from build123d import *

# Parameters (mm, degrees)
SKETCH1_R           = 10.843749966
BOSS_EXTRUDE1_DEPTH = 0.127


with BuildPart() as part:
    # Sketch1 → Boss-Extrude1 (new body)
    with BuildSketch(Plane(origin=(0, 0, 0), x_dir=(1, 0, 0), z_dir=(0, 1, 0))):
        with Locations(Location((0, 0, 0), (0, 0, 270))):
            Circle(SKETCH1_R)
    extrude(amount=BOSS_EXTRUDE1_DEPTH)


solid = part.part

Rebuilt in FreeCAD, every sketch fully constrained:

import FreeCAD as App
import Part
import Sketcher
from FreeCAD import Vector
Q = App.Units.Quantity

doc = App.newDocument("Part")
body = doc.addObject("PartDesign::Body", "Body")

sketch1 = body.newObject("Sketcher::SketchObject", "Sketch")
sketch1.AttachmentSupport = (doc.getObject("XZ_Plane"), [""])
sketch1.MapMode = "FlatFace"
sketch1.addGeometry(Part.Circle(Vector(0, 0, 0), Vector(0, 0, 1), 11), False)
sketch1.addConstraint(Sketcher.Constraint("Coincident", 0, 3, -1, 1))
sketch1.addConstraint(Sketcher.Constraint("Diameter", 0, Q("21.6875 mm")))
pad1 = body.newObject("PartDesign::Pad", "Pad")
pad1.Profile = sketch1
pad1.Length = Q("0.005 in")
pad1.Reversed = True

doc.recompute()
